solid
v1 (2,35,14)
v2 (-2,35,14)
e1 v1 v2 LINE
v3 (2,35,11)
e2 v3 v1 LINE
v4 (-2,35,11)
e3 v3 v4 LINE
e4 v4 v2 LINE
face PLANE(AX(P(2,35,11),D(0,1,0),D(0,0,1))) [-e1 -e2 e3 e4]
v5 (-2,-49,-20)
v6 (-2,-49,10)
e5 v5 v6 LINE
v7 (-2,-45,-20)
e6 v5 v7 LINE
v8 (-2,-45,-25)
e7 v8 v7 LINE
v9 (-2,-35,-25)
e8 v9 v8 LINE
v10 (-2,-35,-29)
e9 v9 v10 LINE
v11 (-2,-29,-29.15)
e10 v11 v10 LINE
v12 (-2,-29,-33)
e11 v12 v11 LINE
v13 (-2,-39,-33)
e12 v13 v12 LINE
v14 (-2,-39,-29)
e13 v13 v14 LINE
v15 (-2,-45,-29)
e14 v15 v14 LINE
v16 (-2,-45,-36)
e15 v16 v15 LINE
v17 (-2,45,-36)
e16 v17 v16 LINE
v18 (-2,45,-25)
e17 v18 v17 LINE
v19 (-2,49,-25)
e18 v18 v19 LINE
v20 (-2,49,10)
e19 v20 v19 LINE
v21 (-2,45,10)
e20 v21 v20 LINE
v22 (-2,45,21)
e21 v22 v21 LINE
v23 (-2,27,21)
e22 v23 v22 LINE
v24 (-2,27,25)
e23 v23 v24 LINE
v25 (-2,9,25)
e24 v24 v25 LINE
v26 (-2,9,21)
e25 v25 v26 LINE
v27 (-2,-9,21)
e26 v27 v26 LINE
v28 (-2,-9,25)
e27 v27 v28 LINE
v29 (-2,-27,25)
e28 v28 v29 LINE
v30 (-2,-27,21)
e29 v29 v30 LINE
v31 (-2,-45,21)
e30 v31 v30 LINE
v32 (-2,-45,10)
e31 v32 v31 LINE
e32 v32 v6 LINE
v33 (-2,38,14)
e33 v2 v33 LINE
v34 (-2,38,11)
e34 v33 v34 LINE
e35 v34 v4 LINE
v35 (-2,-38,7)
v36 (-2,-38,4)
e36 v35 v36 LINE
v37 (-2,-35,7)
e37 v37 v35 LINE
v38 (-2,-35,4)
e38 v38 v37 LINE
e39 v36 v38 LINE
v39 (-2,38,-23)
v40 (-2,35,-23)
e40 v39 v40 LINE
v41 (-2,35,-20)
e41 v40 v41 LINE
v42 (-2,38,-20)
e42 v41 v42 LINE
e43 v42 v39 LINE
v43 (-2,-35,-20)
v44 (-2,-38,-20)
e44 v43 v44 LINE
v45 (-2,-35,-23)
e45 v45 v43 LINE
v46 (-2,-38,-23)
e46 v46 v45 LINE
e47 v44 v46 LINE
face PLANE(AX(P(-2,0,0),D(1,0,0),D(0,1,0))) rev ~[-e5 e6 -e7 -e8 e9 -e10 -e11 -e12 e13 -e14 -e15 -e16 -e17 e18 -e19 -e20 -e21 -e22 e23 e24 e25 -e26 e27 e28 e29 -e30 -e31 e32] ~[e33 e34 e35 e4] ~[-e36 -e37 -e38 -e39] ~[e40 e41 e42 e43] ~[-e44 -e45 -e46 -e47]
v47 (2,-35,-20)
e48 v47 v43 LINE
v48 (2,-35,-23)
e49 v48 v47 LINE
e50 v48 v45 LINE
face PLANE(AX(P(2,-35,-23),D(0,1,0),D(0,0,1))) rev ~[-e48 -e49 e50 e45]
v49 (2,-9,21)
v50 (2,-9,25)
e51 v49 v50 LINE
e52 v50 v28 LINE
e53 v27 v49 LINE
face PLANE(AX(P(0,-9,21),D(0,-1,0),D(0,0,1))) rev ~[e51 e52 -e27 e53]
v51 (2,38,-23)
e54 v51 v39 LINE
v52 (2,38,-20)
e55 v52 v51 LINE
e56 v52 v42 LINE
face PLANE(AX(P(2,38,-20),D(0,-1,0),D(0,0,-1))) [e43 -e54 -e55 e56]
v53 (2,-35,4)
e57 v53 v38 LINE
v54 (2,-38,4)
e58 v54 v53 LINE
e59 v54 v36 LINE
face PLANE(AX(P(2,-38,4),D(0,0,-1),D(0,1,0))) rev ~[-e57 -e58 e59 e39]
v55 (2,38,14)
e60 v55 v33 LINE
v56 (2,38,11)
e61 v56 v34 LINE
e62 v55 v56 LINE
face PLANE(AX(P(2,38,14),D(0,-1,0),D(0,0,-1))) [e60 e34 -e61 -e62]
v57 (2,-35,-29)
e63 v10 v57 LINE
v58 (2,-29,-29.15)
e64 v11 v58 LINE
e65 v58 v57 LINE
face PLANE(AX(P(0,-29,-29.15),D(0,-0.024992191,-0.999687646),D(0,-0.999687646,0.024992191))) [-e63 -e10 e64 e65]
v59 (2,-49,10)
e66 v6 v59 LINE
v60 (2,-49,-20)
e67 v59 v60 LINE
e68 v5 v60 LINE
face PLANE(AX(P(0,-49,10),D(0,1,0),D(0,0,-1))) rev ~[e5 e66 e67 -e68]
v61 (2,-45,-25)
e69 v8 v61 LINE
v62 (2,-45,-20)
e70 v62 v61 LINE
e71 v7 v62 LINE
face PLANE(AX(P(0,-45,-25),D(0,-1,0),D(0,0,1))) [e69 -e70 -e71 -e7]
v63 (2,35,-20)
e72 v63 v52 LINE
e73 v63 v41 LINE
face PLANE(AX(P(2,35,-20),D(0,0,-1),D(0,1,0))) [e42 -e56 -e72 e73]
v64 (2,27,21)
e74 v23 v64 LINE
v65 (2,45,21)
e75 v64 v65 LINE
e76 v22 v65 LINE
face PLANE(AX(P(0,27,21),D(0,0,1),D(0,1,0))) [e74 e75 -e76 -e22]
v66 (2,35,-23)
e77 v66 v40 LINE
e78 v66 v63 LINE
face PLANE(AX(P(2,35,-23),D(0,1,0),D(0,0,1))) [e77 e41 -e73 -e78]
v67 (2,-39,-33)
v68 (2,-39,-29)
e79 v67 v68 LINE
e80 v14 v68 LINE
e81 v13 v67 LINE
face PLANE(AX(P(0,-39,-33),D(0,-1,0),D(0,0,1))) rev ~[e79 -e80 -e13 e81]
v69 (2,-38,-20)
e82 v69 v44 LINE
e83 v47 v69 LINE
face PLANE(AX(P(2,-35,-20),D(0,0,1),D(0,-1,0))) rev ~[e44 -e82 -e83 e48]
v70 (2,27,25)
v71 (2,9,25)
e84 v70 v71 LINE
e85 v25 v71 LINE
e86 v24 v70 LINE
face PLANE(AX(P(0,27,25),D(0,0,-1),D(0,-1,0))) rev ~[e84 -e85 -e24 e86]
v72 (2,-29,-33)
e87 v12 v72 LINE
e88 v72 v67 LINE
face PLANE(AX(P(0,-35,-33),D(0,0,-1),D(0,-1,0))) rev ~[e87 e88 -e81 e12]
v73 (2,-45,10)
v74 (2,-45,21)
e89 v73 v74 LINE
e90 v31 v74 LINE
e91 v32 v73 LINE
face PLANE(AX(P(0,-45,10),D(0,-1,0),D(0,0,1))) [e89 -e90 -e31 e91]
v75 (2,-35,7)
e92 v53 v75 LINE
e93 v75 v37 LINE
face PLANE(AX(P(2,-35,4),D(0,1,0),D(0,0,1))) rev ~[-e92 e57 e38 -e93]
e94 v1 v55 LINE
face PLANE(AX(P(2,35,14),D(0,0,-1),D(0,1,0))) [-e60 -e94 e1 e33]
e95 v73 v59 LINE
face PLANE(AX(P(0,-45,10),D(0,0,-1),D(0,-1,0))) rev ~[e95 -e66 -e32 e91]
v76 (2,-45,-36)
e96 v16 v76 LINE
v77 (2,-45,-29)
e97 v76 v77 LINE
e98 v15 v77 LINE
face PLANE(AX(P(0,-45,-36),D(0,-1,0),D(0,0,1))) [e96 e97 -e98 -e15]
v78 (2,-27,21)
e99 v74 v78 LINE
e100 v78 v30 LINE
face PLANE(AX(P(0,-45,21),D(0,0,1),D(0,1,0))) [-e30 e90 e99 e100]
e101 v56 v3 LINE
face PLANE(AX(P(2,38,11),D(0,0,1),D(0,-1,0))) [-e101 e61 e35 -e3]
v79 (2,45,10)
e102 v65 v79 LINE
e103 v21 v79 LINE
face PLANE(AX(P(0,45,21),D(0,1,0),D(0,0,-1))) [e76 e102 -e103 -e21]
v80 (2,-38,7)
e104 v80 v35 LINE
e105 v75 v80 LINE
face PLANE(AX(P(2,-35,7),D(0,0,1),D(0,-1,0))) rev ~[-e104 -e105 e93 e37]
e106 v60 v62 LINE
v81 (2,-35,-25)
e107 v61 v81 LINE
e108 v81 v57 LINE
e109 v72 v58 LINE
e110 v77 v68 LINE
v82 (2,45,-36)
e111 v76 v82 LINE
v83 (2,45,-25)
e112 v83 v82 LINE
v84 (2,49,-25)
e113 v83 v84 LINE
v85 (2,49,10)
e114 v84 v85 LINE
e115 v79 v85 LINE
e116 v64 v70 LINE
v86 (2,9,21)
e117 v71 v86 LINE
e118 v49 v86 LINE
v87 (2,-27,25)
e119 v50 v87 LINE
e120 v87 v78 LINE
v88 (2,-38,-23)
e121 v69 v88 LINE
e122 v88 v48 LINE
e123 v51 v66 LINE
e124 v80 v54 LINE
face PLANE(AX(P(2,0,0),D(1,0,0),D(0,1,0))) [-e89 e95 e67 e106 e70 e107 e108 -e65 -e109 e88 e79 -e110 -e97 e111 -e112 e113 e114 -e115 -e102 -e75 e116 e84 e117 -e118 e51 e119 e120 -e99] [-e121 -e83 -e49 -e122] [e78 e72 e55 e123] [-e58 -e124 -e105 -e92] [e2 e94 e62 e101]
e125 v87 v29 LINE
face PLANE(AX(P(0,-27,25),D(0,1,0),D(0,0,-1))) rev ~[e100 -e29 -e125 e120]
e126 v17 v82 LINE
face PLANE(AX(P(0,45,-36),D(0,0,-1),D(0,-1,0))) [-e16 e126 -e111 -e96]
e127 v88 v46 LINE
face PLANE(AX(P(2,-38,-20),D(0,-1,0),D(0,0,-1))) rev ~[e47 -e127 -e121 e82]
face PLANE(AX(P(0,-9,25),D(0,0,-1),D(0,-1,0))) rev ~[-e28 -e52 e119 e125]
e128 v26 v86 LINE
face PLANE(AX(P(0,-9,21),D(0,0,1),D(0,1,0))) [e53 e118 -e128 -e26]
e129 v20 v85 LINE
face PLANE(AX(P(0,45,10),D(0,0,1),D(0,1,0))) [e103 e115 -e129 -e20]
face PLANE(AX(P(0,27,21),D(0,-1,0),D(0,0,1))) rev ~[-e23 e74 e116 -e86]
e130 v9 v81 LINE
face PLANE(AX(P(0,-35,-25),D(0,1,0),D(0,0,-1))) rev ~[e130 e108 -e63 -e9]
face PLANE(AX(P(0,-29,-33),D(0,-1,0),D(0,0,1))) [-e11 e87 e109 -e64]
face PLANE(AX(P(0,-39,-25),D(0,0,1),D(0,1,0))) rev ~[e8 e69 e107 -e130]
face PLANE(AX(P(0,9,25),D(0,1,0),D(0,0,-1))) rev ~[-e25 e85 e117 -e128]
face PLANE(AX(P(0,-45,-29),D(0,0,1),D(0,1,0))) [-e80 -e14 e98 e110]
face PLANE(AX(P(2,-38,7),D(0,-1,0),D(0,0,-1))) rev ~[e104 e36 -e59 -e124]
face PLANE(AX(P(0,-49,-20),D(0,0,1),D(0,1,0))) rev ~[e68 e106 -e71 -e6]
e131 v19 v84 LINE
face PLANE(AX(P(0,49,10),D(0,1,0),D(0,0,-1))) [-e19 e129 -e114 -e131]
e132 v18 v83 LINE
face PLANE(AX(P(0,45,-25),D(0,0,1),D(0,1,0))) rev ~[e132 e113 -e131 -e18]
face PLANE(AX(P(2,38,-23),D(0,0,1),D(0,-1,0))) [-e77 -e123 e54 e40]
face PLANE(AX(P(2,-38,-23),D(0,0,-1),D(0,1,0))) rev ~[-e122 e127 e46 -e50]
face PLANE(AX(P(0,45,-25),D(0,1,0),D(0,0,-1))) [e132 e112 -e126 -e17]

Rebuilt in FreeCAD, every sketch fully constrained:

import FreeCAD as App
import Part
import Sketcher


def add_polygon(sketch, points):
    """Adds a closed chain of lines whose ends are joined by coincident constraints."""
    first, n = sketch.GeometryCount, len(points)
    for a, b in zip(points, points[1:] + points[:1]):
        sketch.addGeometry(Part.LineSegment(App.Vector(*a, 0), App.Vector(*b, 0)), False)
    for i in range(n):
        sketch.addConstraint(Sketcher.Constraint("Coincident", first + i, 2, first + (i + 1) % n, 1))

doc = App.newDocument("Part")
body = doc.addObject("PartDesign::Body", "Body")

# Sketch on YZ plane
sketch1 = body.newObject("Sketcher::SketchObject", "Sketch")
sketch1.AttachmentSupport = (doc.getObject("YZ_Plane"), [""])
sketch1.MapMode = "FlatFace"
add_polygon(sketch1, [(-27, 21), (-45, 21), (-45, 10), (-49, 10), (-49, -20), (-45, -20), (-45, -25), (-35, -25), (-35, -29), (-29, -29.1), (-29, -33), (-39, -33), (-39, -29), (-45, -29), (-45, -36), (45, -36), (45, -25), (49, -25), (49, 10), (45, 10), (45, 21), (27, 21), (27, 25), (9, 25), (9, 21), (-9, 21), (-9, 25), (-27, 25)])  # lines 0-27
sketch1.addConstraint(Sketcher.Constraint("Horizontal", 0))
sketch1.addConstraint(Sketcher.Constraint("Vertical", 1))
sketch1.addConstraint(Sketcher.Constraint("Horizontal", 2))
sketch1.addConstraint(Sketcher.Constraint("Vertical", 3))
sketch1.addConstraint(Sketcher.Constraint("Horizontal", 4))
sketch1.addConstraint(Sketcher.Constraint("Vertical", 5))
sketch1.addConstraint(Sketcher.Constraint("Horizontal", 6))
sketch1.addConstraint(Sketcher.Constraint("Vertical", 7))
sketch1.addConstraint(Sketcher.Constraint("Vertical", 9))
sketch1.addConstraint(Sketcher.Constraint("Horizontal", 10))
sketch1.addConstraint(Sketcher.Constraint("Vertical", 11))
sketch1.addConstraint(Sketcher.Constraint("Horizontal", 12))
sketch1.addConstraint(Sketcher.Constraint("Vertical", 13))
sketch1.addConstraint(Sketcher.Constraint("Horizontal", 14))
sketch1.addConstraint(Sketcher.Constraint("Vertical", 15))
sketch1.addConstraint(Sketcher.Constraint("Horizontal", 16))
sketch1.addConstraint(Sketcher.Constraint("Vertical", 17))
sketch1.addConstraint(Sketcher.Constraint("Horizontal", 18))
sketch1.addConstraint(Sketcher.Constraint("Vertical", 19))
sketch1.addConstraint(Sketcher.Constraint("Horizontal", 20))
sketch1.addConstraint(Sketcher.Constraint("Vertical", 21))
sketch1.addConstraint(Sketcher.Constraint("Horizontal", 22))
sketch1.addConstraint(Sketcher.Constraint("Vertical", 23))
sketch1.addConstraint(Sketcher.Constraint("Horizontal", 24))
sketch1.addConstraint(Sketcher.Constraint("Vertical", 25))
sketch1.addConstraint(Sketcher.Constraint("Horizontal", 26))
sketch1.addConstraint(Sketcher.Constraint("Vertical", 27))
sketch1.addConstraint(Sketcher.Constraint("Symmetric", 5, 2, 15, 2, -2))
sketch1.addConstraint(Sketcher.Constraint("Symmetric", 2, 2, 17, 2, -2))
sketch1.addConstraint(Sketcher.Constraint("Symmetric", 0, 2, 19, 2, -2))
sketch1.addConstraint(Sketcher.Constraint("Symmetric", 22, 2, 25, 2, -2))
sketch1.addConstraint(Sketcher.Constraint("Horizontal", 7, 2, 11, 2))
sketch1.addConstraint(Sketcher.Constraint("Horizontal", 20, 2, 23, 2))
sketch1.addConstraint(Sketcher.Constraint("Vertical", 1, 2, 4, 2))
sketch1.addConstraint(Sketcher.Constraint("Vertical", 5, 2, 12, 2))
sketch1.addConstraint(Sketcher.Constraint("Equal", 6, 10))
sketch1.addConstraint(Sketcher.Constraint("Equal", 0, 20))
sketch1.addConstraint(Sketcher.Constraint("Equal", 20, 22))
sketch1.addConstraint(Sketcher.Constraint("Equal", 22, 24))
sketch1.addConstraint(Sketcher.Constraint("Equal", 18, 7))
sketch1.addConstraint(Sketcher.Constraint("Equal", 7, 11))
sketch1.addConstraint(Sketcher.Constraint("Equal", 1, 15))
sketch1.addConstraint(Sketcher.Constraint("Equal", 11, 21))
sketch1.addConstraint(Sketcher.Constraint("DistanceX", 0, 2, 0, 1, 18.0))
sketch1.addConstraint(Sketcher.Constraint("DistanceX", 2, 2, 2, 1, 4.0))
sketch1.addConstraint(Sketcher.Constraint("DistanceX", 12, 2, 12, 1, 6.0))
sketch1.addConstraint(Sketcher.Constraint("DistanceY", 3, 2, 3, 1, 30.0))
sketch1.addConstraint(Sketcher.Constraint("DistanceY", 13, 2, 13, 1, 7.0))
sketch1.addConstraint(Sketcher.Constraint("DistanceY", 3, 2, -1, 1, 20.0))
sketch1.addConstraint(Sketcher.Constraint("DistanceX", 3, 2, 8, 2, 20.0))
sketch1.addConstraint(Sketcher.Constraint("DistanceY", 14, 2, 19, 2, 57.0))
sketch1.addConstraint(Sketcher.Constraint("DistanceY", 8, 2, 7, 2, 0.15))
pad1 = body.newObject("PartDesign::Pad", "Pad")
pad1.Profile = sketch1
pad1.Length = 4
pad1.Midplane = True

# Sketch on YZ plane
sketch2 = body.newObject("Sketcher::SketchObject", "Sketch001")
sketch2.AttachmentSupport = (doc.getObject("YZ_Plane"), [""])
sketch2.MapMode = "FlatFace"
sketch2.AttachmentOffset = App.Placement(App.Vector(0, 0, 2), App.Rotation())
add_polygon(sketch2, [(38, 11), (38, 14), (35, 14), (35, 11)])  # lines 0-3
add_polygon(sketch2, [(-35, -20), (-38, -20), (-38, -23), (-35, -23)])  # lines 4-7
add_polygon(sketch2, [(38, -23), (38, -20), (35, -20), (35, -23)])  # lines 8-11
add_polygon(sketch2, [(-35, 7), (-38, 7), (-38, 4), (-35, 4)])  # lines 12-15
sketch2.addConstraint(Sketcher.Constraint("Vertical", 0))
sketch2.addConstraint(Sketcher.Constraint("Horizontal", 1))
sketch2.addConstraint(Sketcher.Constraint("Vertical", 2))
sketch2.addConstraint(Sketcher.Constraint("Horizontal", 3))
sketch2.addConstraint(Sketcher.Constraint("Horizontal", 4))
sketch2.addConstraint(Sketcher.Constraint("Vertical", 5))
sketch2.addConstraint(Sketcher.Constraint("Horizontal", 6))
sketch2.addConstraint(Sketcher.Constraint("Vertical", 7))
sketch2.addConstraint(Sketcher.Constraint("Vertical", 8))
sketch2.addConstraint(Sketcher.Constraint("Horizontal", 9))
sketch2.addConstraint(Sketcher.Constraint("Vertical", 10))
sketch2.addConstraint(Sketcher.Constraint("Horizontal", 11))
sketch2.addConstraint(Sketcher.Constraint("Horizontal", 12))
sketch2.addConstraint(Sketcher.Constraint("Vertical", 13))
sketch2.addConstraint(Sketcher.Constraint("Horizontal", 14))
sketch2.addConstraint(Sketcher.Constraint("Vertical", 15))
sketch2.addConstraint(Sketcher.Constraint("Symmetric", 4, 2, 8, 2, -2))
sketch2.addConstraint(Sketcher.Constraint("Symmetric", 6, 2, 10, 2, -2))
sketch2.addConstraint(Sketcher.Constraint("Vertical", 3, 2, 8, 2))
sketch2.addConstraint(Sketcher.Constraint("Vertical", 2, 2, 9, 2))
sketch2.addConstraint(Sketcher.Constraint("Vertical", 5, 2, 12, 2))
sketch2.addConstraint(Sketcher.Constraint("Vertical", 7, 2, 14, 2))
sketch2.addConstraint(Sketcher.Constraint("Equal", 14, 0))
sketch2.addConstraint(Sketcher.Constraint("Equal", 2, 5))
sketch2.addConstraint(Sketcher.Constraint("Equal", 10, 13))
sketch2.addConstraint(Sketcher.Constraint("DistanceX", 1, 2, 1, 1, 3.0))
sketch2.addConstraint(Sketcher.Constraint("DistanceY", -1, 1, 2, 2, 11.0))
sketch2.addConstraint(Sketcher.Constraint("DistanceX", -1, 1, 0, 2, 38.0))
sketch2.addConstraint(Sketcher.Constraint("DistanceY", 4, 2, -1, 1, 20.0))
sketch2.addConstraint(Sketcher.Constraint("DistanceY", -1, 1, 12, 2, 7.0))
pocket1 = body.newObject("PartDesign::Pocket", "Pocket")
pocket1.Profile = sketch2
pocket1.Length = 4

doc.recompute()
